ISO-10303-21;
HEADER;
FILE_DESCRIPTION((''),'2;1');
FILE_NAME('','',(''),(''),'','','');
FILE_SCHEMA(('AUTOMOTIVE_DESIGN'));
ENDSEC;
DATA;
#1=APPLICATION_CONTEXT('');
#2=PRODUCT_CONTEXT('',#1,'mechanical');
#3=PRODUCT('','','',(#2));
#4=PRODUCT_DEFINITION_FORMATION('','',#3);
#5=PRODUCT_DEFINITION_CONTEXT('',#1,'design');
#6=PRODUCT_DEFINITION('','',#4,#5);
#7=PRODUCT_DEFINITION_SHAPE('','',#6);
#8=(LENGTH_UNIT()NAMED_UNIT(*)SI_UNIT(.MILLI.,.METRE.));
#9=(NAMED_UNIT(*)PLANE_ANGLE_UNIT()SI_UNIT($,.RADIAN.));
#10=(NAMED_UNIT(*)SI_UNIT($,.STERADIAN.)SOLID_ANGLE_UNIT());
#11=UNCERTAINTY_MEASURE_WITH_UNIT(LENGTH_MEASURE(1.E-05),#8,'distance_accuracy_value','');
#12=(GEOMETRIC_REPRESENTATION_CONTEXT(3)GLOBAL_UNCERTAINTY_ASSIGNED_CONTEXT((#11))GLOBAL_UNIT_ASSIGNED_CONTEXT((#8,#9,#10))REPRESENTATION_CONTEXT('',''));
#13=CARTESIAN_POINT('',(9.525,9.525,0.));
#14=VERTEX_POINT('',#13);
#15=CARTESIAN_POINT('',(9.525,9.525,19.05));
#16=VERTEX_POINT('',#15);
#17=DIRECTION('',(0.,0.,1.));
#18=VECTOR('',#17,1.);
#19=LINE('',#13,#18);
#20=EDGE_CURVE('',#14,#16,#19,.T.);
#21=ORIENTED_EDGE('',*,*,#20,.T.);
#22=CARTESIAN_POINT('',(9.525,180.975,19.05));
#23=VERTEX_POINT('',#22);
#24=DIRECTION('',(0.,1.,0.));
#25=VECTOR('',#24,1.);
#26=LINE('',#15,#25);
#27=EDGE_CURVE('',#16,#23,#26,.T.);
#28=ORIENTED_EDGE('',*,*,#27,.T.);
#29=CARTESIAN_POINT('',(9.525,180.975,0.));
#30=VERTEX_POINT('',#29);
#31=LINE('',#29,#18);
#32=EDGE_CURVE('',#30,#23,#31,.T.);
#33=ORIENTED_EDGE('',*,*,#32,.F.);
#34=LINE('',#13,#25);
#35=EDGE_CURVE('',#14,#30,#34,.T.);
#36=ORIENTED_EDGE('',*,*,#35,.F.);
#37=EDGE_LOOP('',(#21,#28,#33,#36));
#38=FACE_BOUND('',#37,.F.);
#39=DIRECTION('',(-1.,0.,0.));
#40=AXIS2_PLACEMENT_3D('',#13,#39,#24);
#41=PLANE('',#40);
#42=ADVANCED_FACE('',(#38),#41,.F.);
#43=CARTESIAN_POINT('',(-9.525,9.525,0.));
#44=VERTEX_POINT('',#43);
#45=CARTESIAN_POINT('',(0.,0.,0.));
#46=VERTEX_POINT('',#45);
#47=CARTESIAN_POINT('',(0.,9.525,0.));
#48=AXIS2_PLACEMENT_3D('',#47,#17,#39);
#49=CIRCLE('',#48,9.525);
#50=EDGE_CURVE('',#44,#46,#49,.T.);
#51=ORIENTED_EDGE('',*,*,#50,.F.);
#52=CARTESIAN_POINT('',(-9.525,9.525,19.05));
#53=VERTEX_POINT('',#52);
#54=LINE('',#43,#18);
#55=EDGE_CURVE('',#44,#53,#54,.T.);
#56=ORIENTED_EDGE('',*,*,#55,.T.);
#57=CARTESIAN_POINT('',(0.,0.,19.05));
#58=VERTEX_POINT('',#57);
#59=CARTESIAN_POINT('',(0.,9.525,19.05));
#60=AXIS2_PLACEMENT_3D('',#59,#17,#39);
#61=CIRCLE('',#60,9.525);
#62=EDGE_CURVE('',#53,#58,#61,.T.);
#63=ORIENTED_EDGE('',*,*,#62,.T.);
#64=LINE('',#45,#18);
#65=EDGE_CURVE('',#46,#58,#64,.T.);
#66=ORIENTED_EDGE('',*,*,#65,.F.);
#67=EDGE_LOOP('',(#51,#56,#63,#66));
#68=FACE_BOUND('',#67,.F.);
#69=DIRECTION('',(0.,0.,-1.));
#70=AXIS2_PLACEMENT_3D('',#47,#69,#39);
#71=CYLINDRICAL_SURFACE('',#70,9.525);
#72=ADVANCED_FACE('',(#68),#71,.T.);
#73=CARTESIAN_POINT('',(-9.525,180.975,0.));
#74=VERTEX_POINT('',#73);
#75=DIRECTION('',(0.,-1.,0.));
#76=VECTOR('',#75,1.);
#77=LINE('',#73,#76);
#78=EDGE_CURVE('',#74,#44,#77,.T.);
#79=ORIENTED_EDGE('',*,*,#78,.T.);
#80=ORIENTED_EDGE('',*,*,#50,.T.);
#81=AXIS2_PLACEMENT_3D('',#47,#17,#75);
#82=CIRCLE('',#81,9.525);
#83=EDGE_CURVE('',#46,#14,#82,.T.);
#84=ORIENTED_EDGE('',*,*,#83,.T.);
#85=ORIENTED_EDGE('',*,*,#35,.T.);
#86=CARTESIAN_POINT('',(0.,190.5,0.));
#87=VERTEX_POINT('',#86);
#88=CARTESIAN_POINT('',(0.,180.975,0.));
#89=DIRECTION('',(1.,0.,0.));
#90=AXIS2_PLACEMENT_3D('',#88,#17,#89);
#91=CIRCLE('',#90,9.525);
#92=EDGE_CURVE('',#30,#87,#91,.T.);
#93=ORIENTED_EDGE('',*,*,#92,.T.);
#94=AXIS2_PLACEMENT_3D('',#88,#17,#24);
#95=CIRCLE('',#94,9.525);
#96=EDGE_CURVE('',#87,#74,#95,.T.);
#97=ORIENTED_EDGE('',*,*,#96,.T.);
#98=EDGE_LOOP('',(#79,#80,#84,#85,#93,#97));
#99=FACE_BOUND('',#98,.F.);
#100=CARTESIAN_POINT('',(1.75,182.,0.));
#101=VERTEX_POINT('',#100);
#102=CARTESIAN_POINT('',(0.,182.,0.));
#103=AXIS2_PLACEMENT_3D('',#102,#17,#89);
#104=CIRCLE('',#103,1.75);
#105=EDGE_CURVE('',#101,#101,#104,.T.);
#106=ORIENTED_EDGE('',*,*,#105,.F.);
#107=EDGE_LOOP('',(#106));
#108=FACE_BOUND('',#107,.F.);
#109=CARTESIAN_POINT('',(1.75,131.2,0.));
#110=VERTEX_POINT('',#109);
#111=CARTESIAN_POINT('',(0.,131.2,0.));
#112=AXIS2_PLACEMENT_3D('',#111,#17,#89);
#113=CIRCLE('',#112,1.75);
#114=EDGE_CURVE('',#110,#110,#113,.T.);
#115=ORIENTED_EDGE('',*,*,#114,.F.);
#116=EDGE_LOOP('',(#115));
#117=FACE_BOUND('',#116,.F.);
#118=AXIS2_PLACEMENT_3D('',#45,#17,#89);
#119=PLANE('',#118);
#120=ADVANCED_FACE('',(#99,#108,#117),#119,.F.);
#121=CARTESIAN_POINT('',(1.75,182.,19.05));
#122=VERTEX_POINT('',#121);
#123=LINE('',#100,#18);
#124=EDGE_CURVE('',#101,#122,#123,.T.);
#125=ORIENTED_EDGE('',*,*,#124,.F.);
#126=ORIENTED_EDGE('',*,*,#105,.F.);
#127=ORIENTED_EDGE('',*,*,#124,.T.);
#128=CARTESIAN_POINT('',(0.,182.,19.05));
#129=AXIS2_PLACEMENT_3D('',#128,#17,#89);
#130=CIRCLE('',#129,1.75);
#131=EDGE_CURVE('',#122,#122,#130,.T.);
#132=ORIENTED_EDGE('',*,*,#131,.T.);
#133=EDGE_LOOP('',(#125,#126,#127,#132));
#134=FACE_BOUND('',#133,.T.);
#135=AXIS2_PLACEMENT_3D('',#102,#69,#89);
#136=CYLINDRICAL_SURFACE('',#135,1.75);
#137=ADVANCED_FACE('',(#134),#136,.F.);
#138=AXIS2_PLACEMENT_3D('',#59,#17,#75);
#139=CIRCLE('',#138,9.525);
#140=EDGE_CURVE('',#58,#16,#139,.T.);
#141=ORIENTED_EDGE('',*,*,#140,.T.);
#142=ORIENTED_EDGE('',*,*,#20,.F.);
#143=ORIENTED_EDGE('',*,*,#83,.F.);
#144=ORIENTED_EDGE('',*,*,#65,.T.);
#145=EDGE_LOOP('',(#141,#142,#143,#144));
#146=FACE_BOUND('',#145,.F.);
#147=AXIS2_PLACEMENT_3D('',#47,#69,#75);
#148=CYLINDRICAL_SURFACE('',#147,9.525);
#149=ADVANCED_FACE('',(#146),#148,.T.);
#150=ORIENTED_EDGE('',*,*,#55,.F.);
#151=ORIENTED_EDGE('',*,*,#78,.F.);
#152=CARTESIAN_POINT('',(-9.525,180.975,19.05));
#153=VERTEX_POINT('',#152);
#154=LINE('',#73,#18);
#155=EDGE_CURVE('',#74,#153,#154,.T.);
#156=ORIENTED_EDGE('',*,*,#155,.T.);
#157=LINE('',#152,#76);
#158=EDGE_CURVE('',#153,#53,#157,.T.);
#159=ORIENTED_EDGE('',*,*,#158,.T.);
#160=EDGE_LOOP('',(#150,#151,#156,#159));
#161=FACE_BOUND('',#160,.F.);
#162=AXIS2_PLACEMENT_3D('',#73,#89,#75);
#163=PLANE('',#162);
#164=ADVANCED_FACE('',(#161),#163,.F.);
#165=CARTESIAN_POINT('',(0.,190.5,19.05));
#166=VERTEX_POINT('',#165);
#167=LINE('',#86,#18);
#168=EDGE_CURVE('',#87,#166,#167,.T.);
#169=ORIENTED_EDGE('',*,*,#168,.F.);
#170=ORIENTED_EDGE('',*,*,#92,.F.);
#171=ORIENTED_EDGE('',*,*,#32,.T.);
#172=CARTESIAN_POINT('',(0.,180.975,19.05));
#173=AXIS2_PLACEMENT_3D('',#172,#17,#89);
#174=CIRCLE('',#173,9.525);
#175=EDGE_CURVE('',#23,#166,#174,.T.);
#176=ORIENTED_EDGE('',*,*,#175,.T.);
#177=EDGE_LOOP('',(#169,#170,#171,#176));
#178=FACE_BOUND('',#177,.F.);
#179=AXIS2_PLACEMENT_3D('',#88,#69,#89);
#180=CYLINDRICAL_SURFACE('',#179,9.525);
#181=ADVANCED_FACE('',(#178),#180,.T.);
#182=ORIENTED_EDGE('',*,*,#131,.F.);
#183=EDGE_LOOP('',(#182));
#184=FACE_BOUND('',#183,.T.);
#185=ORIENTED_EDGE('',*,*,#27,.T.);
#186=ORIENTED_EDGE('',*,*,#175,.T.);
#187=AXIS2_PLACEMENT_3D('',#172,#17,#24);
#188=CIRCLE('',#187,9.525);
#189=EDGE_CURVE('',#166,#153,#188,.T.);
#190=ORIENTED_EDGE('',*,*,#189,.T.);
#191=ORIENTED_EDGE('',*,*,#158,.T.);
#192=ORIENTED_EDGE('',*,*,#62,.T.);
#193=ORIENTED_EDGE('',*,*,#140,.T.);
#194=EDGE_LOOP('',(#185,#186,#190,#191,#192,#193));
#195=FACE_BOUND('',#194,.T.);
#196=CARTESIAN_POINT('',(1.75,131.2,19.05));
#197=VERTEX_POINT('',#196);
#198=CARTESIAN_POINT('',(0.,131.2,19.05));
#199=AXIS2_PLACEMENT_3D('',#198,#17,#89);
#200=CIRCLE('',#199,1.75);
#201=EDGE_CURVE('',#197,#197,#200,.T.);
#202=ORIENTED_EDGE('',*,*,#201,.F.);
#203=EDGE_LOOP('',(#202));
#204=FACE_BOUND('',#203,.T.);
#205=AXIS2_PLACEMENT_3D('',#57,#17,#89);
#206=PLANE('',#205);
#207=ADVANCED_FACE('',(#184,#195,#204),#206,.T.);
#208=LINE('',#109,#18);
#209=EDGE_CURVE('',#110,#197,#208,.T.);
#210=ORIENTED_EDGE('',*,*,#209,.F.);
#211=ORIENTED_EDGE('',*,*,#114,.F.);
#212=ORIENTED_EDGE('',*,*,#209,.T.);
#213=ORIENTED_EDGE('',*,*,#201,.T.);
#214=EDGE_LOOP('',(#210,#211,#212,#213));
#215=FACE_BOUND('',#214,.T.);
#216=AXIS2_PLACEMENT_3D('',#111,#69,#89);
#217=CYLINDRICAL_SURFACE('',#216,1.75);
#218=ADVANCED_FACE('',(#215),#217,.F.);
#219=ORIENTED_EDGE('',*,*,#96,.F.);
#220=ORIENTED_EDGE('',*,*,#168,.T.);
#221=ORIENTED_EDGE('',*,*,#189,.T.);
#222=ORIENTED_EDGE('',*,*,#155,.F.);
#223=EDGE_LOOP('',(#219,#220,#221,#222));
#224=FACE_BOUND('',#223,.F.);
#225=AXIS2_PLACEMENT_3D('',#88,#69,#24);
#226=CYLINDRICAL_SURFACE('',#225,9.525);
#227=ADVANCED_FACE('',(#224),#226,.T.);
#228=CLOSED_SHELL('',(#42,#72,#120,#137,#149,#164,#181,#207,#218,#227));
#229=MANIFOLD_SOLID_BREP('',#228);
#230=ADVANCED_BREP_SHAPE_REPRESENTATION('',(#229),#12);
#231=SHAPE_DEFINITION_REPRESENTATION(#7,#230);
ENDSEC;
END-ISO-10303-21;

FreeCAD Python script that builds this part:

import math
import FreeCAD as App
import Part
import Sketcher
from FreeCAD import Vector
Q = App.Units.Quantity

doc = App.newDocument("Part")
body = doc.addObject("PartDesign::Body", "Body")

# Sketch on XY plane
sketch1 = body.newObject("Sketcher::SketchObject", "Sketch")
sketch1.AttachmentSupport = (doc.getObject("XY_Plane"), [""])
sketch1.MapMode = "FlatFace"
sketch1.addGeometry([
    Part.ArcOfCircle(Part.Circle(Vector(0, 9.525, 0), Vector(0, 0, 1), 9.525), math.radians(180), math.radians(360)),  # 0
    Part.LineSegment(Vector(9.525, 9.525, 0), Vector(9.525, 180.975, 0)),  # 1
    Part.ArcOfCircle(Part.Circle(Vector(0, 180.975, 0), Vector(0, 0, 1), 9.525), math.radians(0), math.radians(180)),  # 2
    Part.LineSegment(Vector(-9.525, 180.975, 0), Vector(-9.525, 9.525, 0)),  # 3
    Part.Circle(Vector(0, 131.2, 0), Vector(0, 0, 1), 1.75),  # 4
    Part.Circle(Vector(0, 182, 0), Vector(0, 0, 1), 1.75),  # 5
], False)
sketch1.addConstraint([
    Sketcher.Constraint("Tangent", 0, 2, 1, 1),
    Sketcher.Constraint("Tangent", 1, 2, 2, 1),
    Sketcher.Constraint("Tangent", 2, 2, 3, 1),
    Sketcher.Constraint("Tangent", 3, 2, 0, 1),
    Sketcher.Constraint("Vertical", 1),
    Sketcher.Constraint("Vertical", 3),
    Sketcher.Constraint("Equal", 4, 5),
    Sketcher.Constraint("PointOnObject", 0, 3, -2),
    Sketcher.Constraint("PointOnObject", 4, 3, -2),
    Sketcher.Constraint("PointOnObject", 5, 3, -2),
    Sketcher.Constraint("Radius", 0, Q("0.375 in")),
    Sketcher.Constraint("DistanceY", 4, 3, 5, 3, Q("2 in")),
    Sketcher.Constraint("Diameter", 4, Q("0.1378 in")),
    Sketcher.Constraint("DistanceY", -1, 1, 0, 3, Q("0.375 in")),
    Sketcher.Constraint("DistanceY", 1, 1, 1, 2, Q("6.75 in")),
    Sketcher.Constraint("DistanceY", -1, 1, 4, 3, Q("131.2 mm")),
])
pad1 = body.newObject("PartDesign::Pad", "Pad")
pad1.Profile = sketch1
pad1.Length = Q("0.75 in")

doc.recompute()
